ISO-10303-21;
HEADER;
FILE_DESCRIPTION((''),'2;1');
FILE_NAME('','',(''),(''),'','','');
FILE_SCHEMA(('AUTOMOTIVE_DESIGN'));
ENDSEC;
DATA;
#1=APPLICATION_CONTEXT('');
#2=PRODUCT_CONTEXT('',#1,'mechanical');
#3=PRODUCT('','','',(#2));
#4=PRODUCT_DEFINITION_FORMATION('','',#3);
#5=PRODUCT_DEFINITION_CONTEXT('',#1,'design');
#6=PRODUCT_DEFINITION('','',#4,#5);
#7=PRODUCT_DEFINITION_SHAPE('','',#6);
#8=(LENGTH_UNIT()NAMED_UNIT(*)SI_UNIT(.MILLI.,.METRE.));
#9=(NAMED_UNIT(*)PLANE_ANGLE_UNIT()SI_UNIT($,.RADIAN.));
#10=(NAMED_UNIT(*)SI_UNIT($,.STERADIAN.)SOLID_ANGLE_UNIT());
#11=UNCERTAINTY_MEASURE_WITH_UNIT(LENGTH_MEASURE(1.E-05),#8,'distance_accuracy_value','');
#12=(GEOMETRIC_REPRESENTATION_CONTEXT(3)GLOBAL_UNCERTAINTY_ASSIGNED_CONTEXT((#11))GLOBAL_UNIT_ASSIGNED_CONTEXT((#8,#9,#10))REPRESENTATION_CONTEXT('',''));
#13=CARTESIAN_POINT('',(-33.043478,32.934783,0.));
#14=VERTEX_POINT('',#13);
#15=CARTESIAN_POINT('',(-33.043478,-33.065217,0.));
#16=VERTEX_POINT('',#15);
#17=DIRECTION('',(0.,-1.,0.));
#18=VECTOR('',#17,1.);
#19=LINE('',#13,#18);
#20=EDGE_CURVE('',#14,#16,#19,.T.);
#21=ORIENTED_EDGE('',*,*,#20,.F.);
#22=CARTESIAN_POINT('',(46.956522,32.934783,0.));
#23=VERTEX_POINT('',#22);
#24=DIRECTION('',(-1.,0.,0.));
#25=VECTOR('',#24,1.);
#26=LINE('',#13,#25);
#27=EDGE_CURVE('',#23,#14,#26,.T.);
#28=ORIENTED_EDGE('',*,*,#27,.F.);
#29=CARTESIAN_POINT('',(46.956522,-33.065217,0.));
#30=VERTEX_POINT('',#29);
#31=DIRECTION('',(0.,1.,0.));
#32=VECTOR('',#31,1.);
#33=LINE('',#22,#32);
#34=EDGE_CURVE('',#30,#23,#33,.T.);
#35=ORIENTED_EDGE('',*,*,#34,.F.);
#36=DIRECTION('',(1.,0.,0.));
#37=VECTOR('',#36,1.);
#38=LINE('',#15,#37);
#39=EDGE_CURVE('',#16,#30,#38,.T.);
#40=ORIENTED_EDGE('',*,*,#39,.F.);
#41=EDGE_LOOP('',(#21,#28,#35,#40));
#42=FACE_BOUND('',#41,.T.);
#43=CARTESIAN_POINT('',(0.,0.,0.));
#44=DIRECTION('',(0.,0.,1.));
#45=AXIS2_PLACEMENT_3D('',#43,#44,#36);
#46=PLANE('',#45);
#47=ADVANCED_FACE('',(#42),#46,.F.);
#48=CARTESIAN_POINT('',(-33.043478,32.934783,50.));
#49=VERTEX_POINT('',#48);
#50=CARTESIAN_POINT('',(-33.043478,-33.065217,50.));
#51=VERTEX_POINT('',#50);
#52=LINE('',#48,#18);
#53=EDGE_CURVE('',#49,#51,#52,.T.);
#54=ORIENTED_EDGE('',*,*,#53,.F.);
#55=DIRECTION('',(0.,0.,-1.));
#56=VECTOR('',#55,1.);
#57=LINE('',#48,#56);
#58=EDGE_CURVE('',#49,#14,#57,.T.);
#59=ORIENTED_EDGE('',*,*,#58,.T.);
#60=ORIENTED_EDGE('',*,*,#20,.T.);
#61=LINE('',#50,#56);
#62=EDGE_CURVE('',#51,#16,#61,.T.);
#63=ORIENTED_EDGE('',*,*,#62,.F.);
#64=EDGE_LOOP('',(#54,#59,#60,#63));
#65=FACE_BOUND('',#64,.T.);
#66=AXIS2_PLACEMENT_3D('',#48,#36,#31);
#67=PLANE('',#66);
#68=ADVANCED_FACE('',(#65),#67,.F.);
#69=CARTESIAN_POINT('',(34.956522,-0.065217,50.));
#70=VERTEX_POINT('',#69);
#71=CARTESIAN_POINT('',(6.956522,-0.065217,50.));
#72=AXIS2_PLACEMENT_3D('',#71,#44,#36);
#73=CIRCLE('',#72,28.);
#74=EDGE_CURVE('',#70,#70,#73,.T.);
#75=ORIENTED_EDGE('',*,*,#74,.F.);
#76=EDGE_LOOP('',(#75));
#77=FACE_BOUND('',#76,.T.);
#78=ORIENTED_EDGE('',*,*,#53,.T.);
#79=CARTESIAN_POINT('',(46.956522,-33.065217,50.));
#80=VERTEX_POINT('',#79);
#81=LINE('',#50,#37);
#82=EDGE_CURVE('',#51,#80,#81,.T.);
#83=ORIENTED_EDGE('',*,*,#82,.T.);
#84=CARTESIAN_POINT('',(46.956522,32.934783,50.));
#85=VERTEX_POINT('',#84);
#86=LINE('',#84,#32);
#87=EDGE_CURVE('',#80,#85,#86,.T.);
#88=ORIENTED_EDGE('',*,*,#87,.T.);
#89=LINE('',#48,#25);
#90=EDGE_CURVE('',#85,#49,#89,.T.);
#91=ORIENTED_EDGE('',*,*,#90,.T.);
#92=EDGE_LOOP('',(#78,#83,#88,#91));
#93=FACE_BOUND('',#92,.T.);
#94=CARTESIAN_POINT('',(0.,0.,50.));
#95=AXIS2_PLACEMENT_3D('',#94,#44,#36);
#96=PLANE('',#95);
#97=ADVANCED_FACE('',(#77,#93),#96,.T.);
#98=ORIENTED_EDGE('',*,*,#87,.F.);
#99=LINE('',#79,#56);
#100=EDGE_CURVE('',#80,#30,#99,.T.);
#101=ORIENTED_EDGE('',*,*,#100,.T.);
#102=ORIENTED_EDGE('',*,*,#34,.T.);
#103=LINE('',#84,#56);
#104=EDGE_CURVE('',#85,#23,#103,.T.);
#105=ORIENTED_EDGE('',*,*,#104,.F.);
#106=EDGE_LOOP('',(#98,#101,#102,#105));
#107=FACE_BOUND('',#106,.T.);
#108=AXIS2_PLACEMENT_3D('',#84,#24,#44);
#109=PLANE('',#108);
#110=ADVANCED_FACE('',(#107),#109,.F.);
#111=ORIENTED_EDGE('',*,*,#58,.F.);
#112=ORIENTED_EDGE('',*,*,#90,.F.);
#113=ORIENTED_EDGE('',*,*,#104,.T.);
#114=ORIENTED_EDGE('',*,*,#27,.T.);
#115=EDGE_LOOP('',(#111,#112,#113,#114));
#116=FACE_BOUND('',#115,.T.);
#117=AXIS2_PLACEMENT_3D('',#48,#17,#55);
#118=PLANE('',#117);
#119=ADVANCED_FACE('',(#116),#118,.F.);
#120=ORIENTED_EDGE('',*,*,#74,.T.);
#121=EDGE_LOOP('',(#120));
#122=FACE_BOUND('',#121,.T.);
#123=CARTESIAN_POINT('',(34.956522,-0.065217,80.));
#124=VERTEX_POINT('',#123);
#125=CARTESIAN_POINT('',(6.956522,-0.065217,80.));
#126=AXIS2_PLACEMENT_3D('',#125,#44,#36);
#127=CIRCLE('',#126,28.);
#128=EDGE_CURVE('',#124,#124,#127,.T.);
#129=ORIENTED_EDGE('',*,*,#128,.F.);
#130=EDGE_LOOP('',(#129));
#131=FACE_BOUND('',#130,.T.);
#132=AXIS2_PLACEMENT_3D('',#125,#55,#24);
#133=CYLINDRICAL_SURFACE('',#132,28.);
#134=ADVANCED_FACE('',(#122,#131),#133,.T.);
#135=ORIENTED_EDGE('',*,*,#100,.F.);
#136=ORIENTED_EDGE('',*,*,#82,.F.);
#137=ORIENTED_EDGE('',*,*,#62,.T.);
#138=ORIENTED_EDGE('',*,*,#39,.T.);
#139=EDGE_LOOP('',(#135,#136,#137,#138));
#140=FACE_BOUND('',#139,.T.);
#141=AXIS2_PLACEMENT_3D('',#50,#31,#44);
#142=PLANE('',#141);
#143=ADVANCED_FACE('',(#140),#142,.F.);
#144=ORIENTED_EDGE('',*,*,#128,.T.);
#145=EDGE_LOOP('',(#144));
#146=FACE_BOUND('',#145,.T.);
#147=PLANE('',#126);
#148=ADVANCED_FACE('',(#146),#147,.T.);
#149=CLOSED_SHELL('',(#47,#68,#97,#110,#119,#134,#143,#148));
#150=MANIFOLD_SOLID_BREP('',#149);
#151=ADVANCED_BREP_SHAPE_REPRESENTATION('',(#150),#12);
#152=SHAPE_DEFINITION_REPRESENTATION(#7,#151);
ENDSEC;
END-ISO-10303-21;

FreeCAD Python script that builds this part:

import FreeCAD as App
import Part
import Sketcher

V = App.Vector


def add_polygon(sketch, points):
    """Adds a closed chain of lines whose ends are joined by coincident constraints."""
    first, n = sketch.GeometryCount, len(points)
    for a, b in zip(points, points[1:] + points[:1]):
        sketch.addGeometry(Part.LineSegment(App.Vector(*a, 0), App.Vector(*b, 0)), False)
    for i in range(n):
        sketch.addConstraint(Sketcher.Constraint("Coincident", first + i, 2, first + (i + 1) % n, 1))

doc = App.newDocument("Part")
body = doc.addObject("PartDesign::Body", "Body")

sketch1 = doc.addObject("Sketcher::SketchObject", "Sketch")
body.addObject(sketch1)
sketch1.AttachmentSupport = (doc.XY_Plane, [""])
sketch1.MapMode = "FlatFace"
add_polygon(sketch1, [(-33, 33), (-33, -33), (47, -33), (47, 33)])
sketch1.addConstraint(Sketcher.Constraint("Vertical", 0))
sketch1.addConstraint(Sketcher.Constraint("Horizontal", 1))
sketch1.addConstraint(Sketcher.Constraint("Vertical", 2))
sketch1.addConstraint(Sketcher.Constraint("Horizontal", 3))
sketch1.addConstraint(Sketcher.Constraint("DistanceX", 1, 1, 1, 2, 80.0))
sketch1.addConstraint(Sketcher.Constraint("DistanceY", 0, 2, 0, 1, 66.0))
sketch1.addConstraint(Sketcher.Constraint("DistanceX", 0, 2, -1, 1, 33.043478))
sketch1.addConstraint(Sketcher.Constraint("DistanceY", 0, 2, -1, 1, 33.065217))
pad1 = doc.addObject("PartDesign::Pad", "Pad")
body.addObject(pad1)
pad1.Profile = sketch1
pad1.Length = 50

sketch2 = doc.addObject("Sketcher::SketchObject", "Sketch001")
body.addObject(sketch2)
sketch2.AttachmentSupport = (doc.XY_Plane, [""])
sketch2.MapMode = "FlatFace"
sketch2.AttachmentOffset = App.Placement(V(0, 0, 50), App.Rotation())
sketch2.addGeometry(Part.Circle(V(7, 0, 0), V(0, 0, 1), 28), False)
sketch2.addConstraint(Sketcher.Constraint("Diameter", 0, 56.0))
sketch2.addConstraint(Sketcher.Constraint("DistanceX", -1, 1, 0, 3, 6.956522))
sketch2.addConstraint(Sketcher.Constraint("DistanceY", 0, 3, -1, 1, 0.065217))
pad2 = doc.addObject("PartDesign::Pad", "Pad001")
body.addObject(pad2)
pad2.Profile = sketch2
pad2.Length = 30

doc.recompute()
